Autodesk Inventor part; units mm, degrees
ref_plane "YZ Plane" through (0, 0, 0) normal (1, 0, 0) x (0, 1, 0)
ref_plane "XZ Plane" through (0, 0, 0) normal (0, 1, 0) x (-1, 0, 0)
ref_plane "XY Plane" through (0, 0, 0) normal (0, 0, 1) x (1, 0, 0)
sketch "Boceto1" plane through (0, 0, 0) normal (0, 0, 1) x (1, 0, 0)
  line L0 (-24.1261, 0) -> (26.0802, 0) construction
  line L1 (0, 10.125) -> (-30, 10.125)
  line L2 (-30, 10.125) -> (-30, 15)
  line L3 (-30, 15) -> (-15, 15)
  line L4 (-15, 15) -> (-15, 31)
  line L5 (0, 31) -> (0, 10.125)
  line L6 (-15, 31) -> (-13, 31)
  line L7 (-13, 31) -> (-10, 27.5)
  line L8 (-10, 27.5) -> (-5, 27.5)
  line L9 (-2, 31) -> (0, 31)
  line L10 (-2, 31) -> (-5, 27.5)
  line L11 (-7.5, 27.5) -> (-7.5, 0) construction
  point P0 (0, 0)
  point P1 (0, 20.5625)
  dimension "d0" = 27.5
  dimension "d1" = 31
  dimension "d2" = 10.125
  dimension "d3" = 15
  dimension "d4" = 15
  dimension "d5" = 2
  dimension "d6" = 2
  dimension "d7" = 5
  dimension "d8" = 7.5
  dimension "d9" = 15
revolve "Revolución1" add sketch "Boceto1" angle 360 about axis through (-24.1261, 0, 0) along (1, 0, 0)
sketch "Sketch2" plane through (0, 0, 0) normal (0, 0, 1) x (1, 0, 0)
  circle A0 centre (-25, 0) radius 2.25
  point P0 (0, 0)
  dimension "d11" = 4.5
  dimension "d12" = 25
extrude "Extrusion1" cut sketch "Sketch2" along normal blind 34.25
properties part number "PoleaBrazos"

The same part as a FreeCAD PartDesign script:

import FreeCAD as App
import Part
import Sketcher
Q = App.Units.Quantity

doc = App.newDocument("Part")
body = doc.addObject("PartDesign::Body", "Body")

# Sketch on XY plane
sketch1 = body.newObject("Sketcher::SketchObject", "Sketch")
sketch1.AttachmentSupport = (doc.getObject("XY_Plane"), [""])
sketch1.MapMode = "FlatFace"
sketch1.addGeometry([
    Part.LineSegment(App.Vector(-30, 10.1, 0), App.Vector(0, 10.1, 0)),  # 0
    Part.LineSegment(App.Vector(0, 10.1, 0), App.Vector(0, 31, 0)),  # 1
    Part.LineSegment(App.Vector(0, 31, 0), App.Vector(-2, 31, 0)),  # 2
    Part.LineSegment(App.Vector(-2, 31, 0), App.Vector(-5, 27.5, 0)),  # 3
    Part.LineSegment(App.Vector(-5, 27.5, 0), App.Vector(-10, 27.5, 0)),  # 4
    Part.LineSegment(App.Vector(-10, 27.5, 0), App.Vector(-13, 31, 0)),  # 5
    Part.LineSegment(App.Vector(-13, 31, 0), App.Vector(-15, 31, 0)),  # 6
    Part.LineSegment(App.Vector(-15, 31, 0), App.Vector(-15, 15, 0)),  # 7
    Part.LineSegment(App.Vector(-15, 15, 0), App.Vector(-30, 15, 0)),  # 8
    Part.LineSegment(App.Vector(-30, 15, 0), App.Vector(-30, 10.1, 0)),  # 9
], False)
sketch1.addConstraint([
    Sketcher.Constraint("Coincident", 0, 2, 1, 1),
    Sketcher.Constraint("Coincident", 1, 2, 2, 1),
    Sketcher.Constraint("Coincident", 2, 2, 3, 1),
    Sketcher.Constraint("Coincident", 3, 2, 4, 1),
    Sketcher.Constraint("Coincident", 4, 2, 5, 1),
    Sketcher.Constraint("Coincident", 5, 2, 6, 1),
    Sketcher.Constraint("Coincident", 6, 2, 7, 1),
    Sketcher.Constraint("Coincident", 7, 2, 8, 1),
    Sketcher.Constraint("Coincident", 8, 2, 9, 1),
    Sketcher.Constraint("Coincident", 9, 2, 0, 1),
    Sketcher.Constraint("Horizontal", 0),
    Sketcher.Constraint("Vertical", 1),
    Sketcher.Constraint("Horizontal", 2),
    Sketcher.Constraint("Horizontal", 4),
    Sketcher.Constraint("Horizontal", 6),
    Sketcher.Constraint("Vertical", 7),
    Sketcher.Constraint("Horizontal", 8),
    Sketcher.Constraint("Vertical", 9),
    Sketcher.Constraint("PointOnObject", 0, 2, -2),
    Sketcher.Constraint("Horizontal", 2, 2, 5, 2),
    Sketcher.Constraint("Equal", 2, 6),
    Sketcher.Constraint("Equal", 3, 5),
    Sketcher.Constraint("DistanceX", 2, 2, 2, 1, Q("2 mm")),
    Sketcher.Constraint("DistanceX", 4, 2, 4, 1, Q("5 mm")),
    Sketcher.Constraint("DistanceX", 8, 2, 8, 1, Q("15 mm")),
    Sketcher.Constraint("DistanceY", -1, 1, 1, 2, Q("31 mm")),
    Sketcher.Constraint("DistanceX", 3, 2, -1, 1, Q("5 mm")),
    Sketcher.Constraint("DistanceY", -1, 1, 7, 2, Q("15 mm")),
    Sketcher.Constraint("DistanceY", -1, 1, 3, 2, Q("27.5 mm")),
    Sketcher.Constraint("DistanceY", -1, 1, 0, 2, Q("10.125 mm")),
])
revolution = body.newObject("PartDesign::Revolution", "Revolution")
revolution.Profile = sketch1
revolution.ReferenceAxis = (sketch1, ["H_Axis"])
revolution.Angle = 360

# Sketch on XY plane
sketch2 = body.newObject("Sketcher::SketchObject", "Sketch001")
sketch2.AttachmentSupport = (doc.getObject("XY_Plane"), [""])
sketch2.MapMode = "FlatFace"
sketch2.addGeometry(Part.Circle(App.Vector(-25, 0, 0), App.Vector(0, 0, 1), 2.2), False)
sketch2.addConstraint([
    Sketcher.Constraint("PointOnObject", 0, 3, -1),
    Sketcher.Constraint("Diameter", 0, Q("4.5 mm")),
    Sketcher.Constraint("DistanceX", 0, 3, -1, 1, Q("25 mm")),
])
pocket1 = body.newObject("PartDesign::Pocket", "Pocket")
pocket1.Profile = sketch2
pocket1.Length = 34.25
pocket1.Reversed = True

doc.recompute()
